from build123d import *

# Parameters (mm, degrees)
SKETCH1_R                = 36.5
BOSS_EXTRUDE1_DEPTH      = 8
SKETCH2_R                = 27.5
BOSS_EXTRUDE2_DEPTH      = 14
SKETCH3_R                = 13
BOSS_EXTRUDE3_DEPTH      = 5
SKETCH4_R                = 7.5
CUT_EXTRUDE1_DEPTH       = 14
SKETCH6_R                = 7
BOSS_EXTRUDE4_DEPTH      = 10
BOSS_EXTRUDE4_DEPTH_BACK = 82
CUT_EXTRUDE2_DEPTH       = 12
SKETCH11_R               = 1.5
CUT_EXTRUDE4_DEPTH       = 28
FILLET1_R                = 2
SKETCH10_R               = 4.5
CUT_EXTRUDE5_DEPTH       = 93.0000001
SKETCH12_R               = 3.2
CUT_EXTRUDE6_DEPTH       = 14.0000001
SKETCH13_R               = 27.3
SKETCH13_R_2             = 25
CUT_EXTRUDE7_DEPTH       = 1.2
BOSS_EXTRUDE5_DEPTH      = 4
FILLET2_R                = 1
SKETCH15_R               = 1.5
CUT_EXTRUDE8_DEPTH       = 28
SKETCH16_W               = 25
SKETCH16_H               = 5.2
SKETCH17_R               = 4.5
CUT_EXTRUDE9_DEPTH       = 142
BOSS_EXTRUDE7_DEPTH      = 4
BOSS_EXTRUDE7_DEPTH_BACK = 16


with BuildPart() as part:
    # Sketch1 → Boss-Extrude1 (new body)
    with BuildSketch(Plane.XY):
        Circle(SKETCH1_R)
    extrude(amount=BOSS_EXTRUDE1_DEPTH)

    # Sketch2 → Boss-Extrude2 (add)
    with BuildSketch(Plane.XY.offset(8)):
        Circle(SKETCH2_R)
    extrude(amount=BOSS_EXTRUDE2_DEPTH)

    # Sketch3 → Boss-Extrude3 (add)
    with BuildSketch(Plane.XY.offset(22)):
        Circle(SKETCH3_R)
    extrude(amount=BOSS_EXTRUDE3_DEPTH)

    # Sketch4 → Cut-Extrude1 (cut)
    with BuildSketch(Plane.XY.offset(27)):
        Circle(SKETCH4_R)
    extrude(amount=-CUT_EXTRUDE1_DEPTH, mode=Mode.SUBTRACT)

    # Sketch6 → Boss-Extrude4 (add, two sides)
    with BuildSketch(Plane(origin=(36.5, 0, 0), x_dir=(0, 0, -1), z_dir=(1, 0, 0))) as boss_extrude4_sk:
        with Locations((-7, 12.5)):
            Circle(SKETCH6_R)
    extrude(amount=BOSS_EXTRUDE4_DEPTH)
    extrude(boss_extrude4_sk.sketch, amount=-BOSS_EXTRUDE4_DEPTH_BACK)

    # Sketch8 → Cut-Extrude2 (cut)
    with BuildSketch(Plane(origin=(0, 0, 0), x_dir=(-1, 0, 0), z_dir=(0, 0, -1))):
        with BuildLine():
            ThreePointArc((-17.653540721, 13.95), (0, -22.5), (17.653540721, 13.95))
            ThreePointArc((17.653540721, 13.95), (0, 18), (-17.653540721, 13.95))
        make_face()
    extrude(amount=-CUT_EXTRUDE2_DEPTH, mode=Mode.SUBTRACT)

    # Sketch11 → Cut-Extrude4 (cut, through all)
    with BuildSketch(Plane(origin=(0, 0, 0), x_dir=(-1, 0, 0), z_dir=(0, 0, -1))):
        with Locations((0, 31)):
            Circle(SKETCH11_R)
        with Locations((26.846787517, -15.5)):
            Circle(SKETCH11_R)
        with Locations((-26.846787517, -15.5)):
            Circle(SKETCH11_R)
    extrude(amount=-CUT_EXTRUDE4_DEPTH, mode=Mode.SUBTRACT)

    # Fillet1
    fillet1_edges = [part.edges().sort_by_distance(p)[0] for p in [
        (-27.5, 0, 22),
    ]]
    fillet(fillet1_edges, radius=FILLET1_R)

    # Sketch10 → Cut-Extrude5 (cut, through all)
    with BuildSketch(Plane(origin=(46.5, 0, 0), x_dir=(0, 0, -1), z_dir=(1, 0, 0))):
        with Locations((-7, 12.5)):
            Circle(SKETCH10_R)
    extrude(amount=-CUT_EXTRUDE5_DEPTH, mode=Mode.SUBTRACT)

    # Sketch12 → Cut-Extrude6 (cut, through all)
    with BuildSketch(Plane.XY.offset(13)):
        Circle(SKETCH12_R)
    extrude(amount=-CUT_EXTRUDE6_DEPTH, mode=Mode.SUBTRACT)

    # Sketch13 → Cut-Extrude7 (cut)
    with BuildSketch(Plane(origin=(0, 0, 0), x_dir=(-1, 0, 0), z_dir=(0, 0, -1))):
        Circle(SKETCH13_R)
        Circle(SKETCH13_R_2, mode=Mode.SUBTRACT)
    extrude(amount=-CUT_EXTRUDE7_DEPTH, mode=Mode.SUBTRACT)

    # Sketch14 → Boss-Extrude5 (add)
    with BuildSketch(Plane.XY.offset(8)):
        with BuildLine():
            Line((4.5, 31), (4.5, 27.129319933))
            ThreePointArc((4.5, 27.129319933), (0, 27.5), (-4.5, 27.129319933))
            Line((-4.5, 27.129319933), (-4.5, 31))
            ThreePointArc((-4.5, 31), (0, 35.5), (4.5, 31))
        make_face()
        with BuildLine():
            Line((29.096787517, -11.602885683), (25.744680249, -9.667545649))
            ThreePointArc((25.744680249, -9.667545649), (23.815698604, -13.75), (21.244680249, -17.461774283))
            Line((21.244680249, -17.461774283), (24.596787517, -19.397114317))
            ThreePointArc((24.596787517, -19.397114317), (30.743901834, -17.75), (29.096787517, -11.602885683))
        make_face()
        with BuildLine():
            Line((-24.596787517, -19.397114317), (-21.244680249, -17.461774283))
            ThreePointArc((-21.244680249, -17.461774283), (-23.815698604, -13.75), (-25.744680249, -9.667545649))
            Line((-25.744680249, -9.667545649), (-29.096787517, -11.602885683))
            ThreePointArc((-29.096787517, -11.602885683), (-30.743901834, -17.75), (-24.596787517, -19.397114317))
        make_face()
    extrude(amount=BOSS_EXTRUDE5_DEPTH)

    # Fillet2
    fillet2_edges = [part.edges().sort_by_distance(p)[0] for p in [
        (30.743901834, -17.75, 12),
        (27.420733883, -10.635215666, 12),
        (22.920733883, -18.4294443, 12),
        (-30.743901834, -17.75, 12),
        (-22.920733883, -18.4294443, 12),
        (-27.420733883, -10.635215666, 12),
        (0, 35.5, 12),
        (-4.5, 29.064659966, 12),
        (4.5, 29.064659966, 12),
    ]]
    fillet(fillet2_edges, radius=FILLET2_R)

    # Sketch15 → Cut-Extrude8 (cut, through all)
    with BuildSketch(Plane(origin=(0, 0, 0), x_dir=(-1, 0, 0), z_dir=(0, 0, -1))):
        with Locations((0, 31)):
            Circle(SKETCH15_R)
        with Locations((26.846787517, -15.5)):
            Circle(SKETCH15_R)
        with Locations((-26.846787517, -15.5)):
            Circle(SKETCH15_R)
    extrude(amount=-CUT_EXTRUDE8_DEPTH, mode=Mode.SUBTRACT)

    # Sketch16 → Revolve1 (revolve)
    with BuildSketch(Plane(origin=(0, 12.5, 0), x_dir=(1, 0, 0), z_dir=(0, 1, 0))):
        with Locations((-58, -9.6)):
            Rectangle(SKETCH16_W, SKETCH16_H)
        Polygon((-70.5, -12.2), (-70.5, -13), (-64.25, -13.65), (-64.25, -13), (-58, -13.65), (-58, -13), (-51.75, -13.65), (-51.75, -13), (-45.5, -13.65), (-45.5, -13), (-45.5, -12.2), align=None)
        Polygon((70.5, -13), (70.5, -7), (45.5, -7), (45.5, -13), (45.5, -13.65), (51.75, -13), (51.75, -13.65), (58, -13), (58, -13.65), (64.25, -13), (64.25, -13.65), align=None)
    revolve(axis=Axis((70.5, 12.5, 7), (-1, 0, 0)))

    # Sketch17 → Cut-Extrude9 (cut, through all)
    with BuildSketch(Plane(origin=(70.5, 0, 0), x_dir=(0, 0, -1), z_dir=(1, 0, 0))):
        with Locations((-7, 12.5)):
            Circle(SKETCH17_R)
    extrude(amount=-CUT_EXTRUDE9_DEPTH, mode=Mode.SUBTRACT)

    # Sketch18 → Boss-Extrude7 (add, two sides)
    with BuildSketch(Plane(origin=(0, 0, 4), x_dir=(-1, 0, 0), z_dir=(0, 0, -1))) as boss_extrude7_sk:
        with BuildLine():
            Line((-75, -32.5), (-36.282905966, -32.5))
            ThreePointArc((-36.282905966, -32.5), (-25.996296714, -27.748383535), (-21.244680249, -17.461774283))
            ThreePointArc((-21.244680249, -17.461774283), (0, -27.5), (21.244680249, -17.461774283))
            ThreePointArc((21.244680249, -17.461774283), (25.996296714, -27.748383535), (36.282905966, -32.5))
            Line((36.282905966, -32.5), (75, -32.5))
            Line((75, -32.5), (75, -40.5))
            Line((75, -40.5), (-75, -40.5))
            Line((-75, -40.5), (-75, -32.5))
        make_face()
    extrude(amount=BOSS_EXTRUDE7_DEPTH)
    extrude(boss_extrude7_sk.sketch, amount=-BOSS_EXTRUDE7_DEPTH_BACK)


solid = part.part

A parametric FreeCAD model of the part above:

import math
import FreeCAD as App
import Part
import Sketcher

V = App.Vector
Q = App.Units.Quantity


def edges_at(feature, points):
    """Names of the edges that pass closest to the given points."""
    edges = feature.Shape.Edges
    near = lambda p: min(range(len(edges)), key=lambda i: edges[i].distToShape(Part.Vertex(*p))[0])
    return sorted({f"Edge{near(p) + 1}" for p in points})


def add_polygon(sketch, points):
    """Adds a closed chain of lines whose ends are joined by coincident constraints."""
    first, n = sketch.GeometryCount, len(points)
    for a, b in zip(points, points[1:] + points[:1]):
        sketch.addGeometry(Part.LineSegment(App.Vector(*a, 0), App.Vector(*b, 0)), False)
    for i in range(n):
        sketch.addConstraint(Sketcher.Constraint("Coincident", first + i, 2, first + (i + 1) % n, 1))

doc = App.newDocument("Part")
body = doc.addObject("PartDesign::Body", "Body")

# Sketch on XY plane
sketch1 = body.newObject("Sketcher::SketchObject", "Sketch")
sketch1.AttachmentSupport = (doc.getObject("XY_Plane"), [""])
sketch1.MapMode = "FlatFace"
sketch1.addGeometry(Part.Circle(V(0, 0, 0), V(0, 0, 1), 36), False)
sketch1.addConstraint(Sketcher.Constraint("Coincident", 0, 3, -1, 1))
sketch1.addConstraint(Sketcher.Constraint("Diameter", 0, 73.0))
pad1 = body.newObject("PartDesign::Pad", "Pad")
pad1.Profile = sketch1
pad1.Length = 8

# Sketch on XY plane
sketch2 = body.newObject("Sketcher::SketchObject", "Sketch001")
sketch2.AttachmentSupport = (doc.getObject("XY_Plane"), [""])
sketch2.MapMode = "FlatFace"
sketch2.AttachmentOffset = App.Placement(V(0, 0, 8), App.Rotation())
sketch2.addGeometry(Part.Circle(V(0, 0, 0), V(0, 0, 1), 28), False)
sketch2.addConstraint(Sketcher.Constraint("Coincident", 0, 3, -1, 1))
sketch2.addConstraint(Sketcher.Constraint("Diameter", 0, 55.0))
pad2 = body.newObject("PartDesign::Pad", "Pad001")
pad2.Profile = sketch2
pad2.Length = 14

# Sketch on XY plane
sketch3 = body.newObject("Sketcher::SketchObject", "Sketch002")
sketch3.AttachmentSupport = (doc.getObject("XY_Plane"), [""])
sketch3.MapMode = "FlatFace"
sketch3.AttachmentOffset = App.Placement(V(0, 0, 22), App.Rotation())
sketch3.addGeometry(Part.Circle(V(0, 0, 0), V(0, 0, 1), 13), False)
sketch3.addConstraint(Sketcher.Constraint("Coincident", 0, 3, -1, 1))
sketch3.addConstraint(Sketcher.Constraint("Diameter", 0, 26.0))
pad3 = body.newObject("PartDesign::Pad", "Pad002")
pad3.Profile = sketch3
pad3.Length = 5

# Sketch on XY plane
sketch4 = body.newObject("Sketcher::SketchObject", "Sketch003")
sketch4.AttachmentSupport = (doc.getObject("XY_Plane"), [""])
sketch4.MapMode = "FlatFace"
sketch4.AttachmentOffset = App.Placement(V(0, 0, 27), App.Rotation())
sketch4.addGeometry(Part.Circle(V(0, 0, 0), V(0, 0, 1), 8), False)
sketch4.addConstraint(Sketcher.Constraint("Coincident", 0, 3, -1, 1))
sketch4.addConstraint(Sketcher.Constraint("Diameter", 0, 15.0))
pocket1 = body.newObject("PartDesign::Pocket", "Pocket")
pocket1.Profile = sketch4
pocket1.Length = 14

# Sketch on YZ plane
sketch5 = body.newObject("Sketcher::SketchObject", "Sketch004")
sketch5.AttachmentSupport = (doc.getObject("YZ_Plane"), [""])
sketch5.MapMode = "FlatFace"
sketch5.AttachmentOffset = App.Placement(V(0, 0, 36.5), App.Rotation())
sketch5.addGeometry(Part.Circle(V(12, 7, 0), V(0, 0, 1), 7), False)
sketch5.addConstraint(Sketcher.Constraint("Diameter", 0, 14.0))
sketch5.addConstraint(Sketcher.Constraint("DistanceY", -1, 1, 0, 3, 7.0))
sketch5.addConstraint(Sketcher.Constraint("DistanceX", -1, 1, 0, 3, 12.5))
pad4 = body.newObject("PartDesign::Pad", "Pad003")
pad4.Profile = sketch5
pad4.Type = "TwoLengths"
pad4.Length = 10
pad4.Length2 = 82

# Sketch on XY plane
sketch6 = body.newObject("Sketcher::SketchObject", "Sketch005")
sketch6.AttachmentSupport = (doc.getObject("XY_Plane"), [""])
sketch6.MapMode = "FlatFace"
sketch6.addGeometry(Part.ArcOfCircle(Part.Circle(V(0, 0, 0), V(0, 0, 1), 22), math.radians(142), math.radians(398)), False)
sketch6.addGeometry(Part.ArcOfCircle(Part.Circle(V(0, -22, 0), V(0, 0, 1), 40), math.radians(64), math.radians(116)), False)
sketch6.addConstraint(Sketcher.Constraint("Coincident", 0, 1, 1, 2))
sketch6.addConstraint(Sketcher.Constraint("Coincident", 1, 1, 0, 2))
sketch6.addConstraint(Sketcher.Constraint("Coincident", 0, 3, -1, 1))
sketch6.addConstraint(Sketcher.Constraint("PointOnObject", 1, 3, -2))
sketch6.addConstraint(Sketcher.Constraint("Radius", 0, 22.5))
sketch6.addConstraint(Sketcher.Constraint("Radius", 1, 40.5))
sketch6.addConstraint(Sketcher.Constraint("DistanceY", 1, 3, -1, 1, 22.5))
pocket2 = body.newObject("PartDesign::Pocket", "Pocket001")
pocket2.Profile = sketch6
pocket2.Length = 12
pocket2.Reversed = True

# Sketch on XY plane
sketch7 = body.newObject("Sketcher::SketchObject", "Sketch006")
sketch7.AttachmentSupport = (doc.getObject("XY_Plane"), [""])
sketch7.MapMode = "FlatFace"
sketch7.addGeometry(Part.Circle(V(0, 31, 0), V(0, 0, 1), 1.5), False)
sketch7.addGeometry(Part.Circle(V(-26.8, -15.5, 0), V(0, 0, 1), 1.5), False)
sketch7.addGeometry(Part.Circle(V(26.8, -15.5, 0), V(0, 0, 1), 1.5), False)
sketch7.addConstraint(Sketcher.Constraint("Equal", 0, 1))
sketch7.addConstraint(Sketcher.Constraint("Equal", 1, 2))
sketch7.addConstraint(Sketcher.Constraint("Symmetric", 1, 3, 2, 3, -2))
sketch7.addConstraint(Sketcher.Constraint("PointOnObject", 0, 3, -2))
sketch7.addConstraint(Sketcher.Constraint("Diameter", 0, 3.0))
sketch7.addConstraint(Sketcher.Constraint("DistanceY", -1, 1, 0, 3, 31.0))
sketch7.addConstraint(Sketcher.Constraint("DistanceY", 1, 3, -1, 1, 15.5))
sketch7.addConstraint(Sketcher.Constraint("DistanceX", 1, 3, -1, 1, 26.846788))
pocket3 = body.newObject("PartDesign::Pocket", "Pocket002")
pocket3.Profile = sketch7
pocket3.Type = "ThroughAll"
pocket3.Reversed = True
doc.recompute()

fillet = body.newObject("PartDesign::Fillet", "Fillet")
fillet.Base = (pocket3, edges_at(pocket3, [(-27.5, 0, 22)]))
fillet.Radius = 2

# Sketch on YZ plane
sketch8 = body.newObject("Sketcher::SketchObject", "Sketch007")
sketch8.AttachmentSupport = (doc.getObject("YZ_Plane"), [""])
sketch8.MapMode = "FlatFace"
sketch8.AttachmentOffset = App.Placement(V(0, 0, 46.5), App.Rotation())
sketch8.addGeometry(Part.Circle(V(12.5, 7, 0), V(0, 0, 1), 4.5), False)
sketch8.addConstraint(Sketcher.Constraint("Diameter", 0, 9.0))
sketch8.addConstraint(Sketcher.Constraint("DistanceY", -1, 1, 0, 3, 7.0))
sketch8.addConstraint(Sketcher.Constraint("DistanceX", -1, 1, 0, 3, 12.5))
pocket4 = body.newObject("PartDesign::Pocket", "Pocket003")
pocket4.Profile = sketch8
pocket4.Type = "ThroughAll"

# Sketch on XY plane
sketch9 = body.newObject("Sketcher::SketchObject", "Sketch008")
sketch9.AttachmentSupport = (doc.getObject("XY_Plane"), [""])
sketch9.MapMode = "FlatFace"
sketch9.AttachmentOffset = App.Placement(V(0, 0, 13), App.Rotation())
sketch9.addGeometry(Part.Circle(V(0, 0, 0), V(0, 0, 1), 3.2), False)
sketch9.addConstraint(Sketcher.Constraint("Coincident", 0, 3, -1, 1))
sketch9.addConstraint(Sketcher.Constraint("Diameter", 0, 6.4))
pocket5 = body.newObject("PartDesign::Pocket", "Pocket004")
pocket5.Profile = sketch9
pocket5.Type = "ThroughAll"

# Sketch on XY plane
sketch10 = body.newObject("Sketcher::SketchObject", "Sketch009")
sketch10.AttachmentSupport = (doc.getObject("XY_Plane"), [""])
sketch10.MapMode = "FlatFace"
sketch10.addGeometry(Part.Circle(V(0, 0, 0), V(0, 0, 1), 27), False)
sketch10.addGeometry(Part.Circle(V(0, 0, 0), V(0, 0, 1), 25), False)
sketch10.addConstraint(Sketcher.Constraint("Coincident", 0, 3, -1, 1))
sketch10.addConstraint(Sketcher.Constraint("Coincident", 1, 3, -1, 1))
sketch10.addConstraint(Sketcher.Constraint("Diameter", 1, 50.0))
sketch10.addConstraint(Sketcher.Constraint("Diameter", 0, 54.6))
pocket6 = body.newObject("PartDesign::Pocket", "Pocket005")
pocket6.Profile = sketch10
pocket6.Length = 1.2
pocket6.Reversed = True

# Sketch on XY plane
sketch11 = body.newObject("Sketcher::SketchObject", "Sketch010")
sketch11.AttachmentSupport = (doc.getObject("XY_Plane"), [""])
sketch11.MapMode = "FlatFace"
sketch11.AttachmentOffset = App.Placement(V(0, 0, 8), App.Rotation())
sketch11.addGeometry(Part.LineSegment(V(4.5, 27.1, 0), V(4.5, 31, 0)), False)
sketch11.addGeometry(Part.ArcOfCircle(Part.Circle(V(0, 31, 0), V(0, 0, 1), 4.5), math.radians(0), math.radians(180)), False)
sketch11.addGeometry(Part.LineSegment(V(-4.5, 31, 0), V(-4.5, 27.1, 0)), False)
sketch11.addGeometry(Part.ArcOfCircle(Part.Circle(V(0, 0, 0), V(0, 0, 1), 27.5), math.radians(80.58), math.radians(99.42)), False)
sketch11.addGeometry(Part.LineSegment(V(29.1, -11.6, 0), V(25.7, -9.7, 0)), False)
sketch11.addGeometry(Part.ArcOfCircle(Part.Circle(V(0, 0, 0), V(0, 0, 1), 27.5), math.radians(-39.42), math.radians(-20.58)), False)
sketch11.addGeometry(Part.LineSegment(V(21.2, -17.5, 0), V(24.6, -19.4, 0)), False)
sketch11.addGeometry(Part.ArcOfCircle(Part.Circle(V(26.8, -15.5, 0), V(0, 0, 1), 4.5), math.radians(-120), math.radians(60)), False)
sketch11.addGeometry(Part.LineSegment(V(-24.6, -19.4, 0), V(-21.2, -17.5, 0)), False)
sketch11.addGeometry(Part.ArcOfCircle(Part.Circle(V(0, 0, 0), V(0, 0, 1), 27.5), math.radians(-159.42), math.radians(-140.58)), False)
sketch11.addGeometry(Part.LineSegment(V(-25.7, -9.7, 0), V(-29.1, -11.6, 0)), False)
sketch11.addGeometry(Part.ArcOfCircle(Part.Circle(V(-26.8, -15.5, 0), V(0, 0, 1), 4.5), math.radians(120), math.radians(300)), False)
sketch11.addConstraint(Sketcher.Constraint("Tangent", 0, 2, 1, 1))
sketch11.addConstraint(Sketcher.Constraint("Tangent", 1, 2, 2, 1))
sketch11.addConstraint(Sketcher.Constraint("Coincident", 2, 2, 3, 2))
sketch11.addConstraint(Sketcher.Constraint("Coincident", 3, 1, 0, 1))
sketch11.addConstraint(Sketcher.Constraint("Coincident", 4, 2, 5, 2))
sketch11.addConstraint(Sketcher.Constraint("Coincident", 5, 1, 6, 1))
sketch11.addConstraint(Sketcher.Constraint("Tangent", 6, 2, 7, 1))
sketch11.addConstraint(Sketcher.Constraint("Tangent", 7, 2, 4, 1))
sketch11.addConstraint(Sketcher.Constraint("Coincident", 8, 2, 9, 2))
sketch11.addConstraint(Sketcher.Constraint("Coincident", 9, 1, 10, 1))
sketch11.addConstraint(Sketcher.Constraint("Tangent", 10, 2, 11, 1))
sketch11.addConstraint(Sketcher.Constraint("Tangent", 11, 2, 8, 1))
sketch11.addConstraint(Sketcher.Constraint("Vertical", 0))
sketch11.addConstraint(Sketcher.Constraint("Vertical", 2))
sketch11.addConstraint(Sketcher.Constraint("Coincident", 3, 3, -1, 1))
sketch11.addConstraint(Sketcher.Constraint("Coincident", 5, 3, -1, 1))
sketch11.addConstraint(Sketcher.Constraint("Coincident", 9, 3, -1, 1))
sketch11.addConstraint(Sketcher.Constraint("Equal", 3, 5))
sketch11.addConstraint(Sketcher.Constraint("Equal", 1, 7))
sketch11.addConstraint(Sketcher.Constraint("Equal", 5, 9))
sketch11.addConstraint(Sketcher.Constraint("Equal", 7, 11))
sketch11.addConstraint(Sketcher.Constraint("Symmetric", 7, 3, 11, 3, -2))
sketch11.addConstraint(Sketcher.Constraint("PointOnObject", 1, 3, -2))
sketch11.addConstraint(Sketcher.Constraint("Parallel", 4, 6))
sketch11.addConstraint(Sketcher.Constraint("Parallel", 8, 10))
sketch11.addConstraint(Sketcher.Constraint("Horizontal", 5, 1, 8, 2))
sketch11.addConstraint(Sketcher.Constraint("Equal", 4, 6))
sketch11.addConstraint(Sketcher.Constraint("Radius", 1, 4.5))
sketch11.addConstraint(Sketcher.Constraint("Radius", 3, 27.5))
sketch11.addConstraint(Sketcher.Constraint("Angle", 4, Q("150 deg")))
sketch11.addConstraint(Sketcher.Constraint("DistanceY", -1, 1, 1, 3, 31.0))
sketch11.addConstraint(Sketcher.Constraint("DistanceY", 7, 3, -1, 1, 15.5))
pad5 = body.newObject("PartDesign::Pad", "Pad004")
pad5.Profile = sketch11
pad5.Length = 4
doc.recompute()

fillet2 = body.newObject("PartDesign::Fillet", "Fillet001")
fillet2.Base = (pad5, edges_at(pad5, [
    (30.744, -17.75, 12),
    (27.421, -10.635, 12),
    (22.921, -18.429, 12),
    (-30.744, -17.75, 12),
    (-22.921, -18.429, 12),
    (-27.421, -10.635, 12),
    (0, 35.5, 12),
    (-4.5, 29.065, 12),
    (4.5, 29.065, 12),
]))
fillet2.Radius = 1

# Sketch on XY plane
sketch12 = body.newObject("Sketcher::SketchObject", "Sketch011")
sketch12.AttachmentSupport = (doc.getObject("XY_Plane"), [""])
sketch12.MapMode = "FlatFace"
sketch12.addGeometry(Part.Circle(V(0, 31, 0), V(0, 0, 1), 1.5), False)
sketch12.addGeometry(Part.Circle(V(-26.8, -15.5, 0), V(0, 0, 1), 1.5), False)
sketch12.addGeometry(Part.Circle(V(26.8, -15.5, 0), V(0, 0, 1), 1.5), False)
sketch12.addConstraint(Sketcher.Constraint("Equal", 0, 1))
sketch12.addConstraint(Sketcher.Constraint("Equal", 1, 2))
sketch12.addConstraint(Sketcher.Constraint("Symmetric", 1, 3, 2, 3, -2))
sketch12.addConstraint(Sketcher.Constraint("PointOnObject", 0, 3, -2))
sketch12.addConstraint(Sketcher.Constraint("Diameter", 0, 3.0))
sketch12.addConstraint(Sketcher.Constraint("DistanceY", -1, 1, 0, 3, 31.0))
sketch12.addConstraint(Sketcher.Constraint("DistanceY", 1, 3, -1, 1, 15.5))
sketch12.addConstraint(Sketcher.Constraint("DistanceX", 1, 3, -1, 1, 26.846788))
pocket7 = body.newObject("PartDesign::Pocket", "Pocket006")
pocket7.Profile = sketch12
pocket7.Type = "ThroughAll"
pocket7.Reversed = True

# Sketch on XZ plane
sketch13 = body.newObject("Sketcher::SketchObject", "Sketch012")
sketch13.AttachmentSupport = (doc.getObject("XZ_Plane"), [""])
sketch13.MapMode = "FlatFace"
sketch13.AttachmentOffset = App.Placement(V(0, 0, -12.5), App.Rotation())
add_polygon(sketch13, [(-70.5, 7), (-70.5, 13), (-64.2, 13.7), (-64.2, 13), (-58, 13.7), (-58, 13), (-51.8, 13.7), (-51.8, 13), (-45.5, 13.7), (-45.5, 7)])  # lines 0-9
add_polygon(sketch13, [(70.5, 13), (70.5, 7), (45.5, 7), (45.5, 13.7), (51.8, 13), (51.8, 13.7), (58, 13), (58, 13.7), (64.2, 13), (64.2, 13.7)])  # lines 10-19
sketch13.addGeometry(Part.LineSegment(V(70.5, 7, 0), V(-70.5, 7, 0)), True)  # axis
sketch13.addConstraint(Sketcher.Constraint("Vertical", 0))
sketch13.addConstraint(Sketcher.Constraint("Vertical", 2))
sketch13.addConstraint(Sketcher.Constraint("Vertical", 4))
sketch13.addConstraint(Sketcher.Constraint("Vertical", 6))
sketch13.addConstraint(Sketcher.Constraint("Vertical", 8))
sketch13.addConstraint(Sketcher.Constraint("Horizontal", 9))
sketch13.addConstraint(Sketcher.Constraint("Vertical", 10))
sketch13.addConstraint(Sketcher.Constraint("Horizontal", 11))
sketch13.addConstraint(Sketcher.Constraint("Vertical", 12))
sketch13.addConstraint(Sketcher.Constraint("Vertical", 14))
sketch13.addConstraint(Sketcher.Constraint("Vertical", 16))
sketch13.addConstraint(Sketcher.Constraint("Vertical", 18))
sketch13.addConstraint(Sketcher.Constraint("Horizontal", 20))
sketch13.addConstraint(Sketcher.Constraint("Coincident", 20, 1, 10, 2))
sketch13.addConstraint(Sketcher.Constraint("Coincident", 20, 2, 9, 2))
sketch13.addConstraint(Sketcher.Constraint("Symmetric", 7, 2, 12, 2, -2))
sketch13.addConstraint(Sketcher.Constraint("Symmetric", 6, 2, 13, 2, -2))
sketch13.addConstraint(Sketcher.Constraint("Symmetric", 4, 2, 15, 2, -2))
sketch13.addConstraint(Sketcher.Constraint("Symmetric", 2, 2, 17, 2, -2))
sketch13.addConstraint(Sketcher.Constraint("Symmetric", 0, 2, 19, 2, -2))
sketch13.addConstraint(Sketcher.Constraint("Parallel", 1, 3))
sketch13.addConstraint(Sketcher.Constraint("Parallel", 3, 5))
sketch13.addConstraint(Sketcher.Constraint("Parallel", 5, 7))
sketch13.addConstraint(Sketcher.Constraint("Parallel", 13, 15))
sketch13.addConstraint(Sketcher.Constraint("Parallel", 15, 17))
sketch13.addConstraint(Sketcher.Constraint("Parallel", 17, 19))
sketch13.addConstraint(Sketcher.Constraint("Horizontal", 0, 2, 2, 2))
sketch13.addConstraint(Sketcher.Constraint("Horizontal", 1, 2, 3, 2))
sketch13.addConstraint(Sketcher.Constraint("Horizontal", 2, 2, 4, 2))
sketch13.addConstraint(Sketcher.Constraint("Horizontal", 3, 2, 5, 2))
sketch13.addConstraint(Sketcher.Constraint("Horizontal", 4, 2, 6, 2))
sketch13.addConstraint(Sketcher.Constraint("Horizontal", 5, 2, 7, 2))
sketch13.addConstraint(Sketcher.Constraint("DistanceX", 9, 2, 9, 1, 25.0))
sketch13.addConstraint(Sketcher.Constraint("DistanceX", 20, 2, 20, 1, 141.0))
sketch13.addConstraint(Sketcher.Constraint("DistanceY", 0, 1, 0, 2, 6.0))
sketch13.addConstraint(Sketcher.Constraint("DistanceY", -1, 1, 0, 2, 13.0))
sketch13.addConstraint(Sketcher.Constraint("DistanceY", 2, 2, 2, 1, 0.65))
revolution = body.newObject("PartDesign::Revolution", "Revolution")
revolution.Profile = sketch13
revolution.ReferenceAxis = (sketch13, ["Axis0"])
revolution.Angle = 360

# Sketch on YZ plane
sketch14 = body.newObject("Sketcher::SketchObject", "Sketch013")
sketch14.AttachmentSupport = (doc.getObject("YZ_Plane"), [""])
sketch14.MapMode = "FlatFace"
sketch14.AttachmentOffset = App.Placement(V(0, 0, 70.5), App.Rotation())
sketch14.addGeometry(Part.Circle(V(12.5, 7, 0), V(0, 0, 1), 4.5), False)
sketch14.addConstraint(Sketcher.Constraint("Diameter", 0, 9.0))
sketch14.addConstraint(Sketcher.Constraint("DistanceY", -1, 1, 0, 3, 7.0))
sketch14.addConstraint(Sketcher.Constraint("DistanceX", -1, 1, 0, 3, 12.5))
pocket8 = body.newObject("PartDesign::Pocket", "Pocket007")
pocket8.Profile = sketch14
pocket8.Type = "ThroughAll"

# Sketch on XY plane
sketch15 = body.newObject("Sketcher::SketchObject", "Sketch014")
sketch15.AttachmentSupport = (doc.getObject("XY_Plane"), [""])
sketch15.MapMode = "FlatFace"
sketch15.AttachmentOffset = App.Placement(V(0, 0, 4), App.Rotation())
sketch15.addGeometry(Part.LineSegment(V(36, -32, 0), V(75, -32, 0)), False)
sketch15.addGeometry(Part.LineSegment(V(75, -32, 0), V(75, -40, 0)), False)
sketch15.addGeometry(Part.LineSegment(V(75, -40, 0), V(-75, -40, 0)), False)
sketch15.addGeometry(Part.LineSegment(V(-75, -40, 0), V(-75, -32, 0)), False)
sketch15.addGeometry(Part.LineSegment(V(-75, -32, 0), V(-36, -32, 0)), False)
sketch15.addGeometry(Part.ArcOfCircle(Part.Circle(V(-38, -16, 0), V(0, 0, 1), 16), math.radians(-85), math.radians(-5)), False)
sketch15.addGeometry(Part.ArcOfCircle(Part.Circle(V(0, 0, 0), V(0, 0, 1), 28), math.radians(-141), math.radians(-39)), False)
sketch15.addGeometry(Part.ArcOfCircle(Part.Circle(V(38, -16, 0), V(0, 0, 1), 16), math.radians(-175), math.radians(-95)), False)
sketch15.addConstraint(Sketcher.Constraint("Coincident", 0, 2, 1, 1))
sketch15.addConstraint(Sketcher.Constraint("Coincident", 1, 2, 2, 1))
sketch15.addConstraint(Sketcher.Constraint("Coincident", 2, 2, 3, 1))
sketch15.addConstraint(Sketcher.Constraint("Coincident", 3, 2, 4, 1))
sketch15.addConstraint(Sketcher.Constraint("Coincident", 4, 2, 5, 1))
sketch15.addConstraint(Sketcher.Constraint("Coincident", 5, 2, 6, 1))
sketch15.addConstraint(Sketcher.Constraint("Coincident", 6, 2, 7, 1))
sketch15.addConstraint(Sketcher.Constraint("Coincident", 7, 2, 0, 1))
sketch15.addConstraint(Sketcher.Constraint("Horizontal", 0))
sketch15.addConstraint(Sketcher.Constraint("Vertical", 1))
sketch15.addConstraint(Sketcher.Constraint("Horizontal", 2))
sketch15.addConstraint(Sketcher.Constraint("Vertical", 3))
sketch15.addConstraint(Sketcher.Constraint("Horizontal", 4))
sketch15.addConstraint(Sketcher.Constraint("Coincident", 6, 3, -1, 1))
sketch15.addConstraint(Sketcher.Constraint("Equal", 5, 7))
sketch15.addConstraint(Sketcher.Constraint("Symmetric", 5, 3, 7, 3, -2))
sketch15.addConstraint(Sketcher.Constraint("Symmetric", 0, 2, 3, 2, -2))
sketch15.addConstraint(Sketcher.Constraint("Radius", 6, 27.5))
sketch15.addConstraint(Sketcher.Constraint("DistanceX", 2, 2, 2, 1, 150.0))
sketch15.addConstraint(Sketcher.Constraint("DistanceY", 1, 2, 1, 1, 8.0))
sketch15.addConstraint(Sketcher.Constraint("DistanceY", 0, 2, -1, 1, 32.5))
sketch15.addConstraint(Sketcher.Constraint("Radius", 5, 16.402368))
sketch15.addConstraint(Sketcher.Constraint("DistanceX", 0, 1, 0, 2, 38.717094))
sketch15.addConstraint(Sketcher.Constraint("DistanceY", 5, 3, -1, 1, 16.150158))
pad6 = body.newObject("PartDesign::Pad", "Pad005")
pad6.Profile = sketch15
pad6.Type = "TwoLengths"
pad6.Length = 4
pad6.Length2 = 16
pad6.Reversed = True

doc.recompute()
